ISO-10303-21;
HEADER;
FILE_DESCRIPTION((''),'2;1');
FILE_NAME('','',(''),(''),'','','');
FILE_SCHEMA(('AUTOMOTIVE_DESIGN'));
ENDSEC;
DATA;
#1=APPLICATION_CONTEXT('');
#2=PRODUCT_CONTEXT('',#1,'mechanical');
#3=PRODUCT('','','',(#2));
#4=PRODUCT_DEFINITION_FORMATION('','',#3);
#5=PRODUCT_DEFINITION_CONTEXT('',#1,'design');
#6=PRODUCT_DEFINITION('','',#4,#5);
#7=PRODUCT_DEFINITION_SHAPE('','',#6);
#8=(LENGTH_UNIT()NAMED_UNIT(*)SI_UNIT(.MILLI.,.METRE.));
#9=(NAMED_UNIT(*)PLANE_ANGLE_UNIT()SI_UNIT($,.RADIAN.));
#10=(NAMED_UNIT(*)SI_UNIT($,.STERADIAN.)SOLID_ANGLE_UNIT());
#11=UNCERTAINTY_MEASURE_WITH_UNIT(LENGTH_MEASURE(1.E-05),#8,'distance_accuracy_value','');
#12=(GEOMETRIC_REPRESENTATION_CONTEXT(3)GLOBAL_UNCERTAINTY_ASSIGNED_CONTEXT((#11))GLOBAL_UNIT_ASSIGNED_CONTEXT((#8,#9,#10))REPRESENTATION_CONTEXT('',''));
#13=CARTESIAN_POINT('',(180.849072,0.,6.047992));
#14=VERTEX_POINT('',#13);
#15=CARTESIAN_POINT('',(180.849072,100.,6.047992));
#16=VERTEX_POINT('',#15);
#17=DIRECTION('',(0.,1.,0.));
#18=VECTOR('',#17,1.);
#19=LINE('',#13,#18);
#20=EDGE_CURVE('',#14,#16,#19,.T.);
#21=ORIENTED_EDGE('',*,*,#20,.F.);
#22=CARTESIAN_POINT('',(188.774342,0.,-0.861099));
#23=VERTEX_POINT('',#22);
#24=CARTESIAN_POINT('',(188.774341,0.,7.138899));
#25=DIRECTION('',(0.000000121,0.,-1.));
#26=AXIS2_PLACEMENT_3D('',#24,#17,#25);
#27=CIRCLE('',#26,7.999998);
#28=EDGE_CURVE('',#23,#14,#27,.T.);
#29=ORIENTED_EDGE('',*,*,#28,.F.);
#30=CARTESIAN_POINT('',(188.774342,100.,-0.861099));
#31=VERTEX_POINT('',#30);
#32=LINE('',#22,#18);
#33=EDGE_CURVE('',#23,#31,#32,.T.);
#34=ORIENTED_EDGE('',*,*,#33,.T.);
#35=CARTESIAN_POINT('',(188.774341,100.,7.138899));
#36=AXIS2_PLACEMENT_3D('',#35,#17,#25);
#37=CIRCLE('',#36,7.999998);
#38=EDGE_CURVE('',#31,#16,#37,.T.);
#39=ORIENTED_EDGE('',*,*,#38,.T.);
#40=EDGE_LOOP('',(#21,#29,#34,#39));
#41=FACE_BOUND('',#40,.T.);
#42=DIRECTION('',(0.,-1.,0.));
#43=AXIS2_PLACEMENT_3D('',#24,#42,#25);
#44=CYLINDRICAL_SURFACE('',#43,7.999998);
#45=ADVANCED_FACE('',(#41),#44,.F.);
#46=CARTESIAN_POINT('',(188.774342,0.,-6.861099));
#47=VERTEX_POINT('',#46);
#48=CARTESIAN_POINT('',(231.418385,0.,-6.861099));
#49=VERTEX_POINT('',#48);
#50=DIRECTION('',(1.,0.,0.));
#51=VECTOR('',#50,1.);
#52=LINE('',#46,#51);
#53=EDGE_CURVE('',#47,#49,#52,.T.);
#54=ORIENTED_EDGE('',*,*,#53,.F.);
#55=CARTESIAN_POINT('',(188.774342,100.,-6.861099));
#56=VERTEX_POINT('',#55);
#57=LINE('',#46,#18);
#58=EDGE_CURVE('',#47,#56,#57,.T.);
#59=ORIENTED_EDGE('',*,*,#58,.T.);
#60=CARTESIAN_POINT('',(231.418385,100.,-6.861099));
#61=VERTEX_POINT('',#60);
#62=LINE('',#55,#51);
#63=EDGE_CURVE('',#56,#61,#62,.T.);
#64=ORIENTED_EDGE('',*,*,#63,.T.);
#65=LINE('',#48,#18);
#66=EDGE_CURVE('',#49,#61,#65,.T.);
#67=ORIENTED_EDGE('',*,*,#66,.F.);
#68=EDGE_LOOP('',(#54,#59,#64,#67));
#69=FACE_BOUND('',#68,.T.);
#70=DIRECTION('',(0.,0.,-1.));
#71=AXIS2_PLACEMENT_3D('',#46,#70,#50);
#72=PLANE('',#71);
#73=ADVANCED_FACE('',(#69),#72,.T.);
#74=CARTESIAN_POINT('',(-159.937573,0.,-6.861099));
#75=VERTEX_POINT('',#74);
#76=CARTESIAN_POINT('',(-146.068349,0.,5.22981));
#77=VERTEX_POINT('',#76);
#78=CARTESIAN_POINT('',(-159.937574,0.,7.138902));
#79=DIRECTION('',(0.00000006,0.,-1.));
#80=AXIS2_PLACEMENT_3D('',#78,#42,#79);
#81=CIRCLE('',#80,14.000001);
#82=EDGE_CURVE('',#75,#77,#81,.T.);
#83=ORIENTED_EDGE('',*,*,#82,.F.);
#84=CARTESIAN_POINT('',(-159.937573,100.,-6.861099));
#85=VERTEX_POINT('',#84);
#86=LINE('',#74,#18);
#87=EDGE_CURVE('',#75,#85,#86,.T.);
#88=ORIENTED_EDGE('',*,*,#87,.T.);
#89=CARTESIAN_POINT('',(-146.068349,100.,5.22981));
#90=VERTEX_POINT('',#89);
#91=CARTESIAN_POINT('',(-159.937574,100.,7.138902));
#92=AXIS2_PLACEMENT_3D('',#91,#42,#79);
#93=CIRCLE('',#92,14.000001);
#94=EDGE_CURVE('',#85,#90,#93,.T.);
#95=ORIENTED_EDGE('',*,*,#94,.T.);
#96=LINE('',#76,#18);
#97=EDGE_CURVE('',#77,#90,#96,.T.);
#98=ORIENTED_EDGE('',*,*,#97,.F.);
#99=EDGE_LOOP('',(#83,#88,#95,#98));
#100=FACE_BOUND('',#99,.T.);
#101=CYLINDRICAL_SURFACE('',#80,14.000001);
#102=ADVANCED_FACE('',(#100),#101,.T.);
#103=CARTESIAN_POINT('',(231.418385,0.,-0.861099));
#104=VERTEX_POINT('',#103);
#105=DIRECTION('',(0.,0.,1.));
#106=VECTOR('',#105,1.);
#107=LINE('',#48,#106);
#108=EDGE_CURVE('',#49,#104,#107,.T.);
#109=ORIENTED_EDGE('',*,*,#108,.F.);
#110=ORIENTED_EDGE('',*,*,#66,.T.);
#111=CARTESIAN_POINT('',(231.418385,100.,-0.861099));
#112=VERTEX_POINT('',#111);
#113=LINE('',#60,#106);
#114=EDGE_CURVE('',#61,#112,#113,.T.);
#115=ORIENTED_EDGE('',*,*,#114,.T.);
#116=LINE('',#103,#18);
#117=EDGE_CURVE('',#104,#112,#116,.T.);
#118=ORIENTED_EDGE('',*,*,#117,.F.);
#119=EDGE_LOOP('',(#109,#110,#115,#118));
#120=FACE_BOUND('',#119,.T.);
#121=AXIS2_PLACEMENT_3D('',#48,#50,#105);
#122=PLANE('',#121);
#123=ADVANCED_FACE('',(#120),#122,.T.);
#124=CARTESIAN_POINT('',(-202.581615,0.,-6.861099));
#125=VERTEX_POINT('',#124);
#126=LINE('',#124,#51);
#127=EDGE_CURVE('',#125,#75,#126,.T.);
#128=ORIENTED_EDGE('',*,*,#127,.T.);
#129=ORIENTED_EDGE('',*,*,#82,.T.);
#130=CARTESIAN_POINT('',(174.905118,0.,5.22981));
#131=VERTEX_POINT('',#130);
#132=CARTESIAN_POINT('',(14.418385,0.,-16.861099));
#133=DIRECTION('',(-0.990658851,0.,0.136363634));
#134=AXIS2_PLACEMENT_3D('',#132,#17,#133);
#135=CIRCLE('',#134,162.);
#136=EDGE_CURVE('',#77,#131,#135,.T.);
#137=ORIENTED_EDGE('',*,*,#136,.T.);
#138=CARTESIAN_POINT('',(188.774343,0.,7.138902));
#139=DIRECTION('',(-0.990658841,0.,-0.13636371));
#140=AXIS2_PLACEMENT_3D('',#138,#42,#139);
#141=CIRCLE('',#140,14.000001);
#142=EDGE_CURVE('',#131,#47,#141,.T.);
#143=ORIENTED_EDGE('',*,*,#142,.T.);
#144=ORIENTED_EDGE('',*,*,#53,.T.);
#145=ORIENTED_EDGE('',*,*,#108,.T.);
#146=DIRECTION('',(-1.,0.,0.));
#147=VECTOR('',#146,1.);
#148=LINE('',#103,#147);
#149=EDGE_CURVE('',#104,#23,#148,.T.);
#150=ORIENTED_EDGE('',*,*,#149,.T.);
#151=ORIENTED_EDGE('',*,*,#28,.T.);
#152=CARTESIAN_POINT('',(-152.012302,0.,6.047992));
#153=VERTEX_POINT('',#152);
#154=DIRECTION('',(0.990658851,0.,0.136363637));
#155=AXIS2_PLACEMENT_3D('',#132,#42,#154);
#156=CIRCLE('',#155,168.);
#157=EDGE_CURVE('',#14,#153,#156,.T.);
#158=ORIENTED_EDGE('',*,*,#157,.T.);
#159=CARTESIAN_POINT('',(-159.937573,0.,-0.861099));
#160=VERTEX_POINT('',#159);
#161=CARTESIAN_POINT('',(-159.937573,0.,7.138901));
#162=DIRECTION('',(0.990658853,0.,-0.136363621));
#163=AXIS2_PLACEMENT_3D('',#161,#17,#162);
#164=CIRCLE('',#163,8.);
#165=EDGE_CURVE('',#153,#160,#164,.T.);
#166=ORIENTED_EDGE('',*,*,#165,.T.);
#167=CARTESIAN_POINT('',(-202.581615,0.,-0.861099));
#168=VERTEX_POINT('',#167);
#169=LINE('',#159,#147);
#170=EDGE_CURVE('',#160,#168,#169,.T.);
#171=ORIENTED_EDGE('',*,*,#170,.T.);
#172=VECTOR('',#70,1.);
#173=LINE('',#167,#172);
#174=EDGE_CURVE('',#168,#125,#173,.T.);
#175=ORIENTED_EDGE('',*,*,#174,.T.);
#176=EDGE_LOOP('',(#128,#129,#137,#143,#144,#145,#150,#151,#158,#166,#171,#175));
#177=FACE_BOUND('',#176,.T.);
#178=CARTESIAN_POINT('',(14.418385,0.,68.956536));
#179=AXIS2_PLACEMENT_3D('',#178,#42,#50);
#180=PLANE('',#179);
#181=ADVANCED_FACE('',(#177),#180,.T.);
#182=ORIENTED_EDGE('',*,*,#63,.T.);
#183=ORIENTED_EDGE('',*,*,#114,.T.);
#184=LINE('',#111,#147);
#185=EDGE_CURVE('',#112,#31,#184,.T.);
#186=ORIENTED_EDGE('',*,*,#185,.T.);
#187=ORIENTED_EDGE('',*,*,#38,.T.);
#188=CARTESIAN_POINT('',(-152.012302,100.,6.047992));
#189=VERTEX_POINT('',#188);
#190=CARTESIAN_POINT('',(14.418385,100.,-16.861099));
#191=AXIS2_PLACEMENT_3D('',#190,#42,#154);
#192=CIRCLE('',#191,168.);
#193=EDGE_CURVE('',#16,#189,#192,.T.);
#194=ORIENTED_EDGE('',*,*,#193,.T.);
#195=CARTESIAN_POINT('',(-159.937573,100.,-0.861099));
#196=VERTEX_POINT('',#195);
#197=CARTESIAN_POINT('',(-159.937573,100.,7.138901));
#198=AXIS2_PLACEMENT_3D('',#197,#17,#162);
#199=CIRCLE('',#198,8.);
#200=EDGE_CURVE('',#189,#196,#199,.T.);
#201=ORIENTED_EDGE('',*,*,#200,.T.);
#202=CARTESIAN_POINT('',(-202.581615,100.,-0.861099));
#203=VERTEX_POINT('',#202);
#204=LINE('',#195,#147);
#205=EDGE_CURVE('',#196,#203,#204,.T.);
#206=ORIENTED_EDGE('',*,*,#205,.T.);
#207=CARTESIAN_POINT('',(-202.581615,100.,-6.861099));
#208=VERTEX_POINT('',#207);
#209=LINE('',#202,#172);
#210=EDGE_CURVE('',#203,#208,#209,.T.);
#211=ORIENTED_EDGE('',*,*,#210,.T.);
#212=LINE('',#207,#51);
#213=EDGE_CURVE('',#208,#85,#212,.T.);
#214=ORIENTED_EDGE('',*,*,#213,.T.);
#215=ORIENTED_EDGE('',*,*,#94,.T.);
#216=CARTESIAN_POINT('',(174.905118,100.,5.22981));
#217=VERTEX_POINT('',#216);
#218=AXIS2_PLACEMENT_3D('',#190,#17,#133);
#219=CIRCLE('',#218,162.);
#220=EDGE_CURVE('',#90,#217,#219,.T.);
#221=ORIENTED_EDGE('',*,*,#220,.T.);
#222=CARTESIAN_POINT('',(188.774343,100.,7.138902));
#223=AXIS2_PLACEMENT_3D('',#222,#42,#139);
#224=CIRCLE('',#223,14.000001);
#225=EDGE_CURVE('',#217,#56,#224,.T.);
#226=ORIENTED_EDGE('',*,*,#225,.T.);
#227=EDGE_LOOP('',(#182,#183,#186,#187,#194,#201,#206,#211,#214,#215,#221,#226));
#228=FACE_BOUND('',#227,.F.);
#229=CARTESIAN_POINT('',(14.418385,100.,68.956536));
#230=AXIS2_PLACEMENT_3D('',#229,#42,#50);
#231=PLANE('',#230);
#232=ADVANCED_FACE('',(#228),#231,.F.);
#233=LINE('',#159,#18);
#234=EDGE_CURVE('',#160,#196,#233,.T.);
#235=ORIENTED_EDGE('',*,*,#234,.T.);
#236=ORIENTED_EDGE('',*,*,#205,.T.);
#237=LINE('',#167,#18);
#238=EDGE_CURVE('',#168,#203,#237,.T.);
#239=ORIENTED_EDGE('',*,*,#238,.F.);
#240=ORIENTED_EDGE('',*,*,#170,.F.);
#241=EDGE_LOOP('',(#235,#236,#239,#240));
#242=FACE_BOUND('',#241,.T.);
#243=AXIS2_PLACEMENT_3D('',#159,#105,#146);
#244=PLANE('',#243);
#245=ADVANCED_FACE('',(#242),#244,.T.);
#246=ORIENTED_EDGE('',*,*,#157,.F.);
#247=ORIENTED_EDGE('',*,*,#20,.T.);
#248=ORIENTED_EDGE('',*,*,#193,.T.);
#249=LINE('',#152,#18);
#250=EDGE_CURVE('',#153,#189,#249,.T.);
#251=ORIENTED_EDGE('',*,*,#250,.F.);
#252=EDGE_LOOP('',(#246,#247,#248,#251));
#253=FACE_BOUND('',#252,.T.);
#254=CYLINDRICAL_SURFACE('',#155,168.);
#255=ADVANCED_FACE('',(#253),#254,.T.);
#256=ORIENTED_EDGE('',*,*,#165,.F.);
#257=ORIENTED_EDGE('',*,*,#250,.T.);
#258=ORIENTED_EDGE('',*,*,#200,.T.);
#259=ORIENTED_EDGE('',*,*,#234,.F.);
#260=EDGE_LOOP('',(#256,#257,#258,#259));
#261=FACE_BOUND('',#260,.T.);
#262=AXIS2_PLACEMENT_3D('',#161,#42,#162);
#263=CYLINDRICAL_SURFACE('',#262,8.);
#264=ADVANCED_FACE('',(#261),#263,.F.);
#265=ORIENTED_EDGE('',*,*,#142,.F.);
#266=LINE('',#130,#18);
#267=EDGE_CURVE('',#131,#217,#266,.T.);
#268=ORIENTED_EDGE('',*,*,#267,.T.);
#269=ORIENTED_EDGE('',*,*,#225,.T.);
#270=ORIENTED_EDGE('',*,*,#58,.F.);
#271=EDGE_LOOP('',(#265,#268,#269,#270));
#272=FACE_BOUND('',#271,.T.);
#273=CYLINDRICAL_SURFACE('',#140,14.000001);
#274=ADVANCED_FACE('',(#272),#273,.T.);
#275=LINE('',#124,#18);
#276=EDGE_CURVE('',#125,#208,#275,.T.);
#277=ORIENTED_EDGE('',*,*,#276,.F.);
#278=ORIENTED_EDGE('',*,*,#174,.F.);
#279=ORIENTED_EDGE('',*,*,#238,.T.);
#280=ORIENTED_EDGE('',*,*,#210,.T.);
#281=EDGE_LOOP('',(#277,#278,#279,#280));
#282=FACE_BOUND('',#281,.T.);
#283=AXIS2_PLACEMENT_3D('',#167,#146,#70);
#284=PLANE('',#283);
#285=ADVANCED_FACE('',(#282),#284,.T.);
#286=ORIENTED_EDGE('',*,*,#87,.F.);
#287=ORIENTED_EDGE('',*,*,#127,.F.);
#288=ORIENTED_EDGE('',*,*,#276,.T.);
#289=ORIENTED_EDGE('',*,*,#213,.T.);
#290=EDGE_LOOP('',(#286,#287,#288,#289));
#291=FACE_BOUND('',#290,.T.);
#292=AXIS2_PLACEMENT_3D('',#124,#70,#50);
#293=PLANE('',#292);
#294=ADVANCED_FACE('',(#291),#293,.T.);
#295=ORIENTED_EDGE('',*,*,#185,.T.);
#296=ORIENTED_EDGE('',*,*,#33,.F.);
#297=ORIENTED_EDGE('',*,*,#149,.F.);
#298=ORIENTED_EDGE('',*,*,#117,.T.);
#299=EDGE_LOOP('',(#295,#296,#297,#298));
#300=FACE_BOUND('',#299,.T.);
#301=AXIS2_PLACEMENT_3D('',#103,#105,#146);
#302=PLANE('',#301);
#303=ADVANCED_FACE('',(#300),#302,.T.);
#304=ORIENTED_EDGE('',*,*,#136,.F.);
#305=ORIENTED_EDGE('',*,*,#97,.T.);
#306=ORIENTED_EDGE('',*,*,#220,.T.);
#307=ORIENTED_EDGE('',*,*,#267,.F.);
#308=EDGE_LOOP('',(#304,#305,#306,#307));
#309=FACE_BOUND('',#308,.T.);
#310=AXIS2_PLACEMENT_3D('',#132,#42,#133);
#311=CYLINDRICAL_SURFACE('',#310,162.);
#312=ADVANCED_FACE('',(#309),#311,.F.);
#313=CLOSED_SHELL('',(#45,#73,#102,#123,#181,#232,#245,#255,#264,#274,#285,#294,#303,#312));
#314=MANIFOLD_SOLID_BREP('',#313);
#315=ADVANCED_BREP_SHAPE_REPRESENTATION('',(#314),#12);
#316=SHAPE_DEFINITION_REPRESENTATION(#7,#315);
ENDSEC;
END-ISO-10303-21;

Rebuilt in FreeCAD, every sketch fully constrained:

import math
import FreeCAD as App
import Part
import Sketcher
from FreeCAD import Vector
Q = App.Units.Quantity

doc = App.newDocument("Part")
body = doc.addObject("PartDesign::Body", "Body")

sketch1 = doc.addObject("Sketcher::SketchObject", "Sketch")
body.addObject(sketch1)
sketch1.AttachmentSupport = (doc.XZ_Plane, [""])
sketch1.MapMode = "FlatFace"
sketch1.addGeometry(Part.ArcOfCircle(Part.Circle(Vector(14, -17, 0), Vector(0, 0, 1), 162), math.radians(8), math.radians(172)), False)
sketch1.addGeometry(Part.ArcOfCircle(Part.Circle(Vector(189, 7, 0), Vector(0, 0, 1), 14), math.radians(-172), math.radians(-90)), False)
sketch1.addGeometry(Part.LineSegment(Vector(189, -7, 0), Vector(231, -7, 0)), False)
sketch1.addGeometry(Part.LineSegment(Vector(231, -7, 0), Vector(231, -1, 0)), False)
sketch1.addGeometry(Part.LineSegment(Vector(231, -1, 0), Vector(189, -1, 0)), False)
sketch1.addGeometry(Part.ArcOfCircle(Part.Circle(Vector(189, 7, 0), Vector(0, 0, 1), 8), math.radians(-172), math.radians(-90)), False)
sketch1.addGeometry(Part.ArcOfCircle(Part.Circle(Vector(14, -17, 0), Vector(0, 0, 1), 168), math.radians(8), math.radians(172)), False)
sketch1.addGeometry(Part.ArcOfCircle(Part.Circle(Vector(-160, 7, 0), Vector(0, 0, 1), 8), math.radians(-90), math.radians(-8)), False)
sketch1.addGeometry(Part.LineSegment(Vector(-160, -1, 0), Vector(-203, -1, 0)), False)
sketch1.addGeometry(Part.LineSegment(Vector(-203, -1, 0), Vector(-203, -7, 0)), False)
sketch1.addGeometry(Part.LineSegment(Vector(-203, -7, 0), Vector(-160, -7, 0)), False)
sketch1.addGeometry(Part.ArcOfCircle(Part.Circle(Vector(-160, 7, 0), Vector(0, 0, 1), 14), math.radians(-90), math.radians(-8)), False)
sketch1.addConstraint(Sketcher.Constraint("Tangent", 0, 1, 1, 1))
sketch1.addConstraint(Sketcher.Constraint("Tangent", 1, 2, 2, 1))
sketch1.addConstraint(Sketcher.Constraint("Coincident", 2, 2, 3, 1))
sketch1.addConstraint(Sketcher.Constraint("Coincident", 3, 2, 4, 1))
sketch1.addConstraint(Sketcher.Constraint("Tangent", 4, 2, 5, 2))
sketch1.addConstraint(Sketcher.Constraint("Tangent", 5, 1, 6, 1))
sketch1.addConstraint(Sketcher.Constraint("Tangent", 6, 2, 7, 2))
sketch1.addConstraint(Sketcher.Constraint("Tangent", 7, 1, 8, 1))
sketch1.addConstraint(Sketcher.Constraint("Coincident", 8, 2, 9, 1))
sketch1.addConstraint(Sketcher.Constraint("Coincident", 9, 2, 10, 1))
sketch1.addConstraint(Sketcher.Constraint("Tangent", 10, 2, 11, 1))
sketch1.addConstraint(Sketcher.Constraint("Tangent", 11, 2, 0, 2))
sketch1.addConstraint(Sketcher.Constraint("Horizontal", 2))
sketch1.addConstraint(Sketcher.Constraint("Vertical", 3))
sketch1.addConstraint(Sketcher.Constraint("Horizontal", 4))
sketch1.addConstraint(Sketcher.Constraint("Horizontal", 8))
sketch1.addConstraint(Sketcher.Constraint("Vertical", 9))
sketch1.addConstraint(Sketcher.Constraint("Horizontal", 10))
sketch1.addConstraint(Sketcher.Constraint("Coincident", 5, 3, 1, 3))
sketch1.addConstraint(Sketcher.Constraint("Coincident", 6, 3, 0, 3))
sketch1.addConstraint(Sketcher.Constraint("Coincident", 11, 3, 7, 3))
sketch1.addConstraint(Sketcher.Constraint("Equal", 1, 11))
sketch1.addConstraint(Sketcher.Constraint("Horizontal", 1, 3, 7, 3))
sketch1.addConstraint(Sketcher.Constraint("Equal", 4, 8))
sketch1.addConstraint(Sketcher.Constraint("Radius", 0, Q("162 mm")))
sketch1.addConstraint(Sketcher.Constraint("Radius", 1, Q("14.000001 mm")))
sketch1.addConstraint(Sketcher.Constraint("Radius", 6, Q("168 mm")))
sketch1.addConstraint(Sketcher.Constraint("DistanceY", 0, 3, 1, 3, Q("24.000001 mm")))
sketch1.addConstraint(Sketcher.Constraint("DistanceX", 6, 3, 2, 2, Q("217 mm")))
sketch1.addConstraint(Sketcher.Constraint("DistanceY", 0, 3, -1, 1, Q("16.861099 mm")))
sketch1.addConstraint(Sketcher.Constraint("DistanceX", -1, 1, 5, 3, Q("188.774341 mm")))
pad1 = doc.addObject("PartDesign::Pad", "Pad")
body.addObject(pad1)
pad1.Profile = sketch1
pad1.Length = 100
pad1.Reversed = True

doc.recompute()
